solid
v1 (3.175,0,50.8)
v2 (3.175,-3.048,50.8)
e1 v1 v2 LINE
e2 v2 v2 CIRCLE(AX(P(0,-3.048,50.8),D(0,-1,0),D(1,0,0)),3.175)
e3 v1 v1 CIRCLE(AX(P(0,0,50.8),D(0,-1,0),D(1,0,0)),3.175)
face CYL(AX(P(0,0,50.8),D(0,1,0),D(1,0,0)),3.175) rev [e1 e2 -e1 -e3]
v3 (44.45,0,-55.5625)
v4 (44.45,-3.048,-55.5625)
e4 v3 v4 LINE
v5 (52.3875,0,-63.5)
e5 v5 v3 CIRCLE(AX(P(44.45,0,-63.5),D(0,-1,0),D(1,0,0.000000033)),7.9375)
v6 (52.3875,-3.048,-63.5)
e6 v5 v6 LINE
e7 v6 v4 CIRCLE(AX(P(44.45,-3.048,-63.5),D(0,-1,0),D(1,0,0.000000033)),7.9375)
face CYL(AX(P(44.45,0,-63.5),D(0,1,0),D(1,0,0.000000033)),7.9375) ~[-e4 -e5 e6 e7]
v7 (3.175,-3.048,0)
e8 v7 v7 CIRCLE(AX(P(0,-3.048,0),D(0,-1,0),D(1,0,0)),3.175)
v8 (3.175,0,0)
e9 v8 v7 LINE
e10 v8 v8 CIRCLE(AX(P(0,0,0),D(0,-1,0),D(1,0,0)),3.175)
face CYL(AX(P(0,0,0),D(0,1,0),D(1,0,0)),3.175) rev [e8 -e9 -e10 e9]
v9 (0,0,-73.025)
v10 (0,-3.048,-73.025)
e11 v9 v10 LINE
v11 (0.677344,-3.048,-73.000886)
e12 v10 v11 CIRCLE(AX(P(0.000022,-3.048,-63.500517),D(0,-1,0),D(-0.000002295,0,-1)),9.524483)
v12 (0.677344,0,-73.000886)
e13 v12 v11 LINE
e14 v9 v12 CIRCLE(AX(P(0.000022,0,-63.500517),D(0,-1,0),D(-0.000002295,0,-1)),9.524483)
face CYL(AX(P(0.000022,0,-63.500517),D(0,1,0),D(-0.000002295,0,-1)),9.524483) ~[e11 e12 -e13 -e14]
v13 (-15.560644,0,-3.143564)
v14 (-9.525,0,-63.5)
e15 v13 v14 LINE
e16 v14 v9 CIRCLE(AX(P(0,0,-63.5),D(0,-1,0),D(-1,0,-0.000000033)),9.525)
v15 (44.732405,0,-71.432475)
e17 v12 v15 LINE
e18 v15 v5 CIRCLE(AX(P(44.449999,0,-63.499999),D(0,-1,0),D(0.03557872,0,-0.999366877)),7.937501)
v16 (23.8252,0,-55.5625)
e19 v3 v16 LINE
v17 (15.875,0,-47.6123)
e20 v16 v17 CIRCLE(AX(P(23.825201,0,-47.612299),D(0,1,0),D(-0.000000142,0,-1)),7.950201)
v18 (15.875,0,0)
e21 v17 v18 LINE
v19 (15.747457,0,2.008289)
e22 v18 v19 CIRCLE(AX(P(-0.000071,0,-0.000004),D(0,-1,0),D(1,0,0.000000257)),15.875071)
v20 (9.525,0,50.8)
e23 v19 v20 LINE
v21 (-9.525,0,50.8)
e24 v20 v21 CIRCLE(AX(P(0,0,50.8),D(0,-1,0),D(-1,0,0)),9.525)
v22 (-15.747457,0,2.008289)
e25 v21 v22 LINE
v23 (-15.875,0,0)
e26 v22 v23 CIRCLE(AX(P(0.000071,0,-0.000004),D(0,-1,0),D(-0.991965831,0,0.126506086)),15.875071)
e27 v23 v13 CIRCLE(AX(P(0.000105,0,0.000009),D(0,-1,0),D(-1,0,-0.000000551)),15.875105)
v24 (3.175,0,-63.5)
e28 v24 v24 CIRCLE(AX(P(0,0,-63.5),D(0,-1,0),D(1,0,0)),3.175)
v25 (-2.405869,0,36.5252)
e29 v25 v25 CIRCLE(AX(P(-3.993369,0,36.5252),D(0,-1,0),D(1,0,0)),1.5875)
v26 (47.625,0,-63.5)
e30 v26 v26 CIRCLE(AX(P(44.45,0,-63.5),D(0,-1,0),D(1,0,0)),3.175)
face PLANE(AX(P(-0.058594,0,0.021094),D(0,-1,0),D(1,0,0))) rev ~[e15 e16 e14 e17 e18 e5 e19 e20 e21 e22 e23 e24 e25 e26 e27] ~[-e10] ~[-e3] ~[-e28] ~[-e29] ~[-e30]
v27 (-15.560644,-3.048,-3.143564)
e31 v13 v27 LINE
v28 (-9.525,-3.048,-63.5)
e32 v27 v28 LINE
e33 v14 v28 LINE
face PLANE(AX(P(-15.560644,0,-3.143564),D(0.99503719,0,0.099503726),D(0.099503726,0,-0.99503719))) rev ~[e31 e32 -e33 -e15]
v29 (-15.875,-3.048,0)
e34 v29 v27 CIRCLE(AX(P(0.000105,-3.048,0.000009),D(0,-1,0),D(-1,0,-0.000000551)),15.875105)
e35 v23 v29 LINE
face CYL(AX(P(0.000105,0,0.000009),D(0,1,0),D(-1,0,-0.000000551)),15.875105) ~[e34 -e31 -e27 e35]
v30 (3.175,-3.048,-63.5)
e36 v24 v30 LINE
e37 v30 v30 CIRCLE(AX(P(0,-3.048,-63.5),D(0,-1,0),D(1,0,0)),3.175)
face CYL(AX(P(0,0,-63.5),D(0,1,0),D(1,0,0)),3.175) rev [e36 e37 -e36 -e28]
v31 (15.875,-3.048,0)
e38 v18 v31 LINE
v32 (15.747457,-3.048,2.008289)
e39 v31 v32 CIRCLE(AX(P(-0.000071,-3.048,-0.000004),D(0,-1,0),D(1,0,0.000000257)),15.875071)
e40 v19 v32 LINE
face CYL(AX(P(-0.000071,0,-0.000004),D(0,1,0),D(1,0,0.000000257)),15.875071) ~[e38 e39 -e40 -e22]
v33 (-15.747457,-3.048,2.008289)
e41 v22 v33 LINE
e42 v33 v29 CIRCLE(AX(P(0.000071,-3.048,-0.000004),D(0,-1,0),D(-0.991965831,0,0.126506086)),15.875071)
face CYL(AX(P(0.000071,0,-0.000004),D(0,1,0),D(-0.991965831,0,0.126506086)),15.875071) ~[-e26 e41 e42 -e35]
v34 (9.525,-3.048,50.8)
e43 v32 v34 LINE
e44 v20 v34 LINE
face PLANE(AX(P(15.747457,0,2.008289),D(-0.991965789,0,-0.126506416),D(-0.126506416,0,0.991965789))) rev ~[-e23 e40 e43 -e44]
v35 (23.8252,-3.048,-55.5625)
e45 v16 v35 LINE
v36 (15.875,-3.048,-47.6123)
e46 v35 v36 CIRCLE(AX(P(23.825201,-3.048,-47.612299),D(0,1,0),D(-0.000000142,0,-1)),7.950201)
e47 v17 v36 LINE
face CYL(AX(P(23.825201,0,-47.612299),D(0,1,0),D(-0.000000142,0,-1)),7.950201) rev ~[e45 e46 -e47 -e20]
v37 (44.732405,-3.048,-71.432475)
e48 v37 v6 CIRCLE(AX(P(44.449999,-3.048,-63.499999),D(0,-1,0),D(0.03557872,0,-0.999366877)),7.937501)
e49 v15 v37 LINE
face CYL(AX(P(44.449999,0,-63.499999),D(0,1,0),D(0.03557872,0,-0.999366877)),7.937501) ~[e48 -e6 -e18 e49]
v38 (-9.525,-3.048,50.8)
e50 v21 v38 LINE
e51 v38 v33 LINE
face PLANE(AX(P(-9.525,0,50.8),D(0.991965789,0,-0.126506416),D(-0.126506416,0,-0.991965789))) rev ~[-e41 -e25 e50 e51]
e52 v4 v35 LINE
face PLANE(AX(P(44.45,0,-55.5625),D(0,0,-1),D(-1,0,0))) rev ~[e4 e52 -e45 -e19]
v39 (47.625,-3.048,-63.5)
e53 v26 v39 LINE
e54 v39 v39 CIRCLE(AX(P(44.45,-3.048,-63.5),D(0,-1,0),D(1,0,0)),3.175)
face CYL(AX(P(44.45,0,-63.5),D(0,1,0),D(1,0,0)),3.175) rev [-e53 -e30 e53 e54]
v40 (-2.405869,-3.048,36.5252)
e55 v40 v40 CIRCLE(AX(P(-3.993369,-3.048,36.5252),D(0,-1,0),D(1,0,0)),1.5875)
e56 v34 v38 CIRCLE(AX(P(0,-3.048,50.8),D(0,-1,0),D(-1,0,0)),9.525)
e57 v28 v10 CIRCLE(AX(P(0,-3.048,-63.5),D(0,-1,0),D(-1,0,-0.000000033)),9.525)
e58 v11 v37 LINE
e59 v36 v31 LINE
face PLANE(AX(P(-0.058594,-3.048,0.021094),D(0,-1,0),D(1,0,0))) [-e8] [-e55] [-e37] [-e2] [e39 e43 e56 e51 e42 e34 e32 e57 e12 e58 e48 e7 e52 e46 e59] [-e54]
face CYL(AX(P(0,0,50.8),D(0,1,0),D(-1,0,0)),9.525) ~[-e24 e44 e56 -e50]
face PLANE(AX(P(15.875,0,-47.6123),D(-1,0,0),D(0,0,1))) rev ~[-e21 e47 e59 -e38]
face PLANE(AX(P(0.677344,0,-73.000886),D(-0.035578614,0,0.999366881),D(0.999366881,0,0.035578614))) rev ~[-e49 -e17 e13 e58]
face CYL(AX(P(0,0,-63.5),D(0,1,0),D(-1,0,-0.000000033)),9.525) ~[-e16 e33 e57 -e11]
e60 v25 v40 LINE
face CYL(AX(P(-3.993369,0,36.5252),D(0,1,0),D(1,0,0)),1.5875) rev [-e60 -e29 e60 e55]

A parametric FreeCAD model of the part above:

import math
import FreeCAD as App
import Part
import Sketcher
from FreeCAD import Vector
Q = App.Units.Quantity

doc = App.newDocument("Part")
body = doc.addObject("PartDesign::Body", "Body")

sketch1 = doc.addObject("Sketcher::SketchObject", "Sketch")
body.addObject(sketch1)
sketch1.AttachmentSupport = (doc.XZ_Plane, [""])
sketch1.MapMode = "FlatFace"
sketch1.addGeometry(Part.ArcOfCircle(Part.Circle(Vector(-0.000071, -0.000004, 0), Vector(0, 0, 1), 15.875071), math.radians(0.000015), math.radians(7.267739)), False)
sketch1.addGeometry(Part.LineSegment(Vector(15.747457, 2.008289, 0), Vector(9.525, 50.8, 0)), False)
sketch1.addGeometry(Part.ArcOfCircle(Part.Circle(Vector(0, 50.8, 0), Vector(0, 0, 1), 9.525), math.radians(0), math.radians(180)), False)
sketch1.addGeometry(Part.LineSegment(Vector(-9.525, 50.8, 0), Vector(-15.747457, 2.008289, 0)), False)
sketch1.addGeometry(Part.ArcOfCircle(Part.Circle(Vector(0.000071, -0.000004, 0), Vector(0, 0, 1), 15.875071), math.radians(172.732261), math.radians(179.999985)), False)
sketch1.addGeometry(Part.ArcOfCircle(Part.Circle(Vector(0.000105, 0.000009, 0), Vector(0, 0, 1), 15.875105), math.radians(-179.999968), math.radians(-168.57886)), False)
sketch1.addGeometry(Part.LineSegment(Vector(-15.560644, -3.143564, 0), Vector(-9.525, -63.5, 0)), False)
sketch1.addGeometry(Part.ArcOfCircle(Part.Circle(Vector(0, -63.5, 0), Vector(0, 0, 1), 9.525), math.radians(-179.999998), math.radians(-90.000002)), False)
sketch1.addGeometry(Part.ArcOfCircle(Part.Circle(Vector(0.000022, -63.500517, 0), Vector(0, 0, 1), 9.524483), math.radians(-90.000132), math.radians(-85.922038)), False)
sketch1.addGeometry(Part.LineSegment(Vector(0.677344, -73.000886, 0), Vector(44.732405, -71.432475, 0)), False)
sketch1.addGeometry(Part.ArcOfCircle(Part.Circle(Vector(44.449999, -63.499999, 0), Vector(0, 0, 1), 7.937501), math.radians(-87.961059), math.radians(-0.000005)), False)
sketch1.addGeometry(Part.ArcOfCircle(Part.Circle(Vector(44.45, -63.5, 0), Vector(0, 0, 1), 7.9375), math.radians(0.000002), math.radians(89.999998)), False)
sketch1.addGeometry(Part.LineSegment(Vector(44.45, -55.5625, 0), Vector(23.8252, -55.5625, 0)), False)
sketch1.addGeometry(Part.ArcOfCircle(Part.Circle(Vector(23.825201, -47.612299, 0), Vector(0, 0, 1), 7.950201), math.radians(-179.999992), math.radians(-90.000008)), False)
sketch1.addGeometry(Part.LineSegment(Vector(15.875, -47.6123, 0), Vector(15.875, 0, 0)), False)
sketch1.addGeometry(Part.Circle(Vector(0, -63.5, 0), Vector(0, 0, 1), 3.175), False)
sketch1.addGeometry(Part.Circle(Vector(44.45, -63.5, 0), Vector(0, 0, 1), 3.175), False)
sketch1.addGeometry(Part.Circle(Vector(0, 0, 0), Vector(0, 0, 1), 3.175), False)
sketch1.addGeometry(Part.Circle(Vector(-3.993369, 36.5252, 0), Vector(0, 0, 1), 1.5875), False)
sketch1.addGeometry(Part.Circle(Vector(0, 50.8, 0), Vector(0, 0, 1), 3.175), False)
sketch1.addConstraint(Sketcher.Constraint("Tangent", 0, 2, 1, 1))
sketch1.addConstraint(Sketcher.Constraint("Coincident", 1, 2, 2, 1))
sketch1.addConstraint(Sketcher.Constraint("Coincident", 2, 2, 3, 1))
sketch1.addConstraint(Sketcher.Constraint("Tangent", 3, 2, 4, 1))
sketch1.addConstraint(Sketcher.Constraint("Tangent", 4, 2, 5, 1))
sketch1.addConstraint(Sketcher.Constraint("Coincident", 5, 2, 6, 1))
sketch1.addConstraint(Sketcher.Constraint("Coincident", 6, 2, 7, 1))
sketch1.addConstraint(Sketcher.Constraint("Coincident", 7, 2, 8, 1))
sketch1.addConstraint(Sketcher.Constraint("Coincident", 8, 2, 9, 1))
sketch1.addConstraint(Sketcher.Constraint("Tangent", 9, 2, 10, 1))
sketch1.addConstraint(Sketcher.Constraint("Tangent", 10, 2, 11, 1))
sketch1.addConstraint(Sketcher.Constraint("Tangent", 11, 2, 12, 1))
sketch1.addConstraint(Sketcher.Constraint("Tangent", 12, 2, 13, 2))
sketch1.addConstraint(Sketcher.Constraint("Tangent", 13, 1, 14, 1))
sketch1.addConstraint(Sketcher.Constraint("Tangent", 14, 2, 0, 1))
sketch1.addConstraint(Sketcher.Constraint("Horizontal", 12))
sketch1.addConstraint(Sketcher.Constraint("Vertical", 14))
sketch1.addConstraint(Sketcher.Constraint("Coincident", 17, 3, -1, 1))
sketch1.addConstraint(Sketcher.Constraint("Coincident", 15, 3, 7, 3))
sketch1.addConstraint(Sketcher.Constraint("Coincident", 16, 3, 10, 3))
sketch1.addConstraint(Sketcher.Constraint("Coincident", 19, 3, 2, 3))
sketch1.addConstraint(Sketcher.Constraint("Equal", 0, 4))
sketch1.addConstraint(Sketcher.Constraint("Equal", 2, 7))
sketch1.addConstraint(Sketcher.Constraint("Equal", 10, 11))
sketch1.addConstraint(Sketcher.Constraint("Equal", 15, 16))
sketch1.addConstraint(Sketcher.Constraint("Equal", 16, 17))
sketch1.addConstraint(Sketcher.Constraint("Equal", 17, 19))
sketch1.addConstraint(Sketcher.Constraint("Symmetric", 0, 3, 4, 3, -1, 1))
sketch1.addConstraint(Sketcher.Constraint("Symmetric", 1, 2, 2, 2, -2))
sketch1.addConstraint(Sketcher.Constraint("PointOnObject", 7, 3, -2))
sketch1.addConstraint(Sketcher.Constraint("PointOnObject", 4, 2, -1))
sketch1.addConstraint(Sketcher.Constraint("PointOnObject", 7, 2, -2))
sketch1.addConstraint(Sketcher.Constraint("PointOnObject", 14, 2, -1))
sketch1.addConstraint(Sketcher.Constraint("Horizontal", 7, 3, 10, 3))
sketch1.addConstraint(Sketcher.Constraint("Horizontal", 19, 3, 1, 2))
sketch1.addConstraint(Sketcher.Constraint("Horizontal", 16, 3, 6, 2))
sketch1.addConstraint(Sketcher.Constraint("Horizontal", 6, 2, 10, 2))
sketch1.addConstraint(Sketcher.Constraint("Diameter", 15, Q("0.25 in")))
sketch1.addConstraint(Sketcher.Constraint("Diameter", 18, Q("0.125 in")))
sketch1.addConstraint(Sketcher.Constraint("DistanceY", -1, 1, 2, 3, Q("2 in")))
sketch1.addConstraint(Sketcher.Constraint("Radius", 2, Q("0.375 in")))
sketch1.addConstraint(Sketcher.Constraint("Radius", 10, Q("0.3125 in")))
sketch1.addConstraint(Sketcher.Constraint("Radius", 13, Q("0.313 in")))
sketch1.addConstraint(Sketcher.Constraint("DistanceY", 7, 3, -1, 1, Q("2.5 in")))
sketch1.addConstraint(Sketcher.Constraint("DistanceX", 12, 2, 12, 1, Q("0.812 in")))
sketch1.addConstraint(Sketcher.Constraint("DistanceX", -1, 1, 10, 3, Q("1.75 in")))
sketch1.addConstraint(Sketcher.Constraint("DistanceY", -1, 1, 18, 3, Q("1.438 in")))
sketch1.addConstraint(Sketcher.Constraint("Radius", 0, Q("15.875071 mm")))
sketch1.addConstraint(Sketcher.Constraint("Radius", 5, Q("15.875105 mm")))
sketch1.addConstraint(Sketcher.Constraint("Radius", 8, Q("9.524483 mm")))
sketch1.addConstraint(Sketcher.Constraint("DistanceX", 18, 3, 0, 3, Q("3.993298 mm")))
sketch1.addConstraint(Sketcher.Constraint("Distance", 9, Q("44.082971 mm")))
sketch1.addConstraint(Sketcher.Constraint("DistanceX", 8, 3, 13, 3, Q("23.825179 mm")))
sketch1.addConstraint(Sketcher.Constraint("DistanceY", 5, 2, 0, 3, Q("3.14356 mm")))
pad1 = doc.addObject("PartDesign::Pad", "Pad")
body.addObject(pad1)
pad1.Profile = sketch1
pad1.Length = Q("0.12 in")

doc.recompute()
